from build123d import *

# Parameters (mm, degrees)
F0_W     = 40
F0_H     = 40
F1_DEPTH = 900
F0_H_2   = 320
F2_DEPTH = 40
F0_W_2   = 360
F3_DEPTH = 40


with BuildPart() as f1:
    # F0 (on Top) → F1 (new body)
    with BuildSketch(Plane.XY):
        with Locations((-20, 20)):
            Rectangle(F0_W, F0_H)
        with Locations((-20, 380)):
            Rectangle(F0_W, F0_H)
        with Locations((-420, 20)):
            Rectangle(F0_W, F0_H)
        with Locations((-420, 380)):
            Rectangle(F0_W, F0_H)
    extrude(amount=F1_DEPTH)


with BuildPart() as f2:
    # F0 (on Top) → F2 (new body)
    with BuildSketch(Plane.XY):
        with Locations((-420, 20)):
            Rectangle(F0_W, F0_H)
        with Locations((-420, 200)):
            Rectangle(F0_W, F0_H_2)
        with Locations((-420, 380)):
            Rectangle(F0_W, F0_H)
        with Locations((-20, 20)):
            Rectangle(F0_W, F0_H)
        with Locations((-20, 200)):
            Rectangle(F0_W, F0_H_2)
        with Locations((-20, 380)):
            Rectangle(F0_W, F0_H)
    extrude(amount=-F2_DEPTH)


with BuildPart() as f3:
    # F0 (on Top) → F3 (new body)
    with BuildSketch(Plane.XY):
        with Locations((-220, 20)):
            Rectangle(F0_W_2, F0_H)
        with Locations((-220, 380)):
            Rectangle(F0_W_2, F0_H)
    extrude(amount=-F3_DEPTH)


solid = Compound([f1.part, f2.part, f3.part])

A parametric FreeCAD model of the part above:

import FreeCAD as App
import Part
import Sketcher
from FreeCAD import Vector


def add_polygon(sketch, points):
    """Adds a closed chain of lines whose ends are joined by coincident constraints."""
    first, n = sketch.GeometryCount, len(points)
    for a, b in zip(points, points[1:] + points[:1]):
        sketch.addGeometry(Part.LineSegment(App.Vector(*a, 0), App.Vector(*b, 0)), False)
    for i in range(n):
        sketch.addConstraint(Sketcher.Constraint("Coincident", first + i, 2, first + (i + 1) % n, 1))

doc = App.newDocument("Part")
body = doc.addObject("PartDesign::Body", "Body")
body.AllowCompound = True

# Sketch on XY plane
sketch1 = body.newObject("Sketcher::SketchObject", "Sketch")
sketch1.AttachmentSupport = (doc.getObject("XY_Plane"), [""])
sketch1.MapMode = "FlatFace"
add_polygon(sketch1, [(-40, 40), (-40, 0), (0, 0), (0, 40)])  # lines 0-3
add_polygon(sketch1, [(-40, 400), (-40, 360), (0, 360), (0, 400)])  # lines 4-7
add_polygon(sketch1, [(-440, 40), (-440, 0), (-400, 0), (-400, 40)])  # lines 8-11
add_polygon(sketch1, [(-440, 400), (-440, 360), (-400, 360), (-400, 400)])  # lines 12-15
sketch1.addConstraint([
    Sketcher.Constraint("Vertical", 0),
    Sketcher.Constraint("Horizontal", 1),
    Sketcher.Constraint("Vertical", 2),
    Sketcher.Constraint("Horizontal", 3),
    Sketcher.Constraint("Vertical", 4),
    Sketcher.Constraint("Horizontal", 5),
    Sketcher.Constraint("Vertical", 6),
    Sketcher.Constraint("Horizontal", 7),
    Sketcher.Constraint("Vertical", 8),
    Sketcher.Constraint("Horizontal", 9),
    Sketcher.Constraint("Vertical", 10),
    Sketcher.Constraint("Horizontal", 11),
    Sketcher.Constraint("Vertical", 12),
    Sketcher.Constraint("Horizontal", 13),
    Sketcher.Constraint("Vertical", 14),
    Sketcher.Constraint("Horizontal", 15),
    Sketcher.Constraint("Coincident", 1, 2, -1, 1),
    Sketcher.Constraint("PointOnObject", 5, 2, -2),
    Sketcher.Constraint("PointOnObject", 8, 2, -1),
    Sketcher.Constraint("Horizontal", 3, 2, 10, 2),
    Sketcher.Constraint("Horizontal", 5, 2, 12, 2),
    Sketcher.Constraint("Horizontal", 7, 2, 14, 2),
    Sketcher.Constraint("Vertical", 3, 2, 4, 2),
    Sketcher.Constraint("Vertical", 11, 2, 12, 2),
    Sketcher.Constraint("Vertical", 10, 2, 13, 2),
    Sketcher.Constraint("Equal", 7, 9),
    Sketcher.Constraint("Equal", 15, 0),
    Sketcher.Constraint("Equal", 2, 4),
    Sketcher.Constraint("DistanceX", 1, 1, 1, 2, 40.0),
    Sketcher.Constraint("DistanceY", -1, 1, 4, 2, 360.0),
    Sketcher.Constraint("DistanceX", 8, 2, -1, 1, 440.0),
])
pad1 = body.newObject("PartDesign::Pad", "Pad")
pad1.Profile = sketch1
pad1.Length = 900
body2 = doc.addObject("PartDesign::Body", "Body001")
body2.AllowCompound = True

# Sketch on XY plane
sketch2 = body2.newObject("Sketcher::SketchObject", "Sketch001")
sketch2.AttachmentSupport = (doc.getObject("XY_Plane001"), [""])
sketch2.MapMode = "FlatFace"
add_polygon(sketch2, [(-440, 0), (-400, 0), (-400, 400), (-440, 400)])  # lines 0-3
add_polygon(sketch2, [(-40, 0), (0, 0), (0, 400), (-40, 400)])  # lines 4-7
sketch2.addConstraint([
    Sketcher.Constraint("Horizontal", 0),
    Sketcher.Constraint("Vertical", 1),
    Sketcher.Constraint("Horizontal", 2),
    Sketcher.Constraint("Vertical", 3),
    Sketcher.Constraint("Horizontal", 4),
    Sketcher.Constraint("Vertical", 5),
    Sketcher.Constraint("Horizontal", 6),
    Sketcher.Constraint("Vertical", 7),
    Sketcher.Constraint("Coincident", 4, 2, -1, 1),
    Sketcher.Constraint("PointOnObject", 0, 2, -1),
    Sketcher.Constraint("Horizontal", 2, 2, 5, 2),
    Sketcher.Constraint("Equal", 2, 4),
    Sketcher.Constraint("DistanceX", 0, 1, 0, 2, 40.0),
    Sketcher.Constraint("DistanceY", 1, 1, 1, 2, 400.0),
    Sketcher.Constraint("DistanceX", 0, 2, -1, 1, 400.0),
])
pad2 = body2.newObject("PartDesign::Pad", "Pad001")
pad2.Profile = sketch2
pad2.Length = 40
pad2.Reversed = True
body3 = doc.addObject("PartDesign::Body", "Body002")
body3.AllowCompound = True

# Sketch on XY plane
sketch3 = body3.newObject("Sketcher::SketchObject", "Sketch002")
sketch3.AttachmentSupport = (doc.getObject("XY_Plane002"), [""])
sketch3.MapMode = "FlatFace"
add_polygon(sketch3, [(-400, 40), (-400, 0), (-40, 0), (-40, 40)])  # lines 0-3
add_polygon(sketch3, [(-400, 400), (-400, 360), (-40, 360), (-40, 400)])  # lines 4-7
sketch3.addConstraint([
    Sketcher.Constraint("Vertical", 0),
    Sketcher.Constraint("Horizontal", 1),
    Sketcher.Constraint("Vertical", 2),
    Sketcher.Constraint("Horizontal", 3),
    Sketcher.Constraint("Vertical", 4),
    Sketcher.Constraint("Horizontal", 5),
    Sketcher.Constraint("Vertical", 6),
    Sketcher.Constraint("Horizontal", 7),
    Sketcher.Constraint("PointOnObject", 0, 2, -1),
    Sketcher.Constraint("Vertical", 3, 2, 4, 2),
    Sketcher.Constraint("Vertical", 2, 2, 5, 2),
    Sketcher.Constraint("Equal", 2, 4),
    Sketcher.Constraint("DistanceX", 1, 1, 1, 2, 360.0),
    Sketcher.Constraint("DistanceY", 0, 2, 0, 1, 40.0),
    Sketcher.Constraint("DistanceX", 0, 2, -1, 1, 400.0),
    Sketcher.Constraint("DistanceY", -1, 1, 4, 2, 360.0),
])
pad3 = body3.newObject("PartDesign::Pad", "Pad002")
pad3.Profile = sketch3
pad3.Length = 40
pad3.Reversed = True

doc.recompute()
